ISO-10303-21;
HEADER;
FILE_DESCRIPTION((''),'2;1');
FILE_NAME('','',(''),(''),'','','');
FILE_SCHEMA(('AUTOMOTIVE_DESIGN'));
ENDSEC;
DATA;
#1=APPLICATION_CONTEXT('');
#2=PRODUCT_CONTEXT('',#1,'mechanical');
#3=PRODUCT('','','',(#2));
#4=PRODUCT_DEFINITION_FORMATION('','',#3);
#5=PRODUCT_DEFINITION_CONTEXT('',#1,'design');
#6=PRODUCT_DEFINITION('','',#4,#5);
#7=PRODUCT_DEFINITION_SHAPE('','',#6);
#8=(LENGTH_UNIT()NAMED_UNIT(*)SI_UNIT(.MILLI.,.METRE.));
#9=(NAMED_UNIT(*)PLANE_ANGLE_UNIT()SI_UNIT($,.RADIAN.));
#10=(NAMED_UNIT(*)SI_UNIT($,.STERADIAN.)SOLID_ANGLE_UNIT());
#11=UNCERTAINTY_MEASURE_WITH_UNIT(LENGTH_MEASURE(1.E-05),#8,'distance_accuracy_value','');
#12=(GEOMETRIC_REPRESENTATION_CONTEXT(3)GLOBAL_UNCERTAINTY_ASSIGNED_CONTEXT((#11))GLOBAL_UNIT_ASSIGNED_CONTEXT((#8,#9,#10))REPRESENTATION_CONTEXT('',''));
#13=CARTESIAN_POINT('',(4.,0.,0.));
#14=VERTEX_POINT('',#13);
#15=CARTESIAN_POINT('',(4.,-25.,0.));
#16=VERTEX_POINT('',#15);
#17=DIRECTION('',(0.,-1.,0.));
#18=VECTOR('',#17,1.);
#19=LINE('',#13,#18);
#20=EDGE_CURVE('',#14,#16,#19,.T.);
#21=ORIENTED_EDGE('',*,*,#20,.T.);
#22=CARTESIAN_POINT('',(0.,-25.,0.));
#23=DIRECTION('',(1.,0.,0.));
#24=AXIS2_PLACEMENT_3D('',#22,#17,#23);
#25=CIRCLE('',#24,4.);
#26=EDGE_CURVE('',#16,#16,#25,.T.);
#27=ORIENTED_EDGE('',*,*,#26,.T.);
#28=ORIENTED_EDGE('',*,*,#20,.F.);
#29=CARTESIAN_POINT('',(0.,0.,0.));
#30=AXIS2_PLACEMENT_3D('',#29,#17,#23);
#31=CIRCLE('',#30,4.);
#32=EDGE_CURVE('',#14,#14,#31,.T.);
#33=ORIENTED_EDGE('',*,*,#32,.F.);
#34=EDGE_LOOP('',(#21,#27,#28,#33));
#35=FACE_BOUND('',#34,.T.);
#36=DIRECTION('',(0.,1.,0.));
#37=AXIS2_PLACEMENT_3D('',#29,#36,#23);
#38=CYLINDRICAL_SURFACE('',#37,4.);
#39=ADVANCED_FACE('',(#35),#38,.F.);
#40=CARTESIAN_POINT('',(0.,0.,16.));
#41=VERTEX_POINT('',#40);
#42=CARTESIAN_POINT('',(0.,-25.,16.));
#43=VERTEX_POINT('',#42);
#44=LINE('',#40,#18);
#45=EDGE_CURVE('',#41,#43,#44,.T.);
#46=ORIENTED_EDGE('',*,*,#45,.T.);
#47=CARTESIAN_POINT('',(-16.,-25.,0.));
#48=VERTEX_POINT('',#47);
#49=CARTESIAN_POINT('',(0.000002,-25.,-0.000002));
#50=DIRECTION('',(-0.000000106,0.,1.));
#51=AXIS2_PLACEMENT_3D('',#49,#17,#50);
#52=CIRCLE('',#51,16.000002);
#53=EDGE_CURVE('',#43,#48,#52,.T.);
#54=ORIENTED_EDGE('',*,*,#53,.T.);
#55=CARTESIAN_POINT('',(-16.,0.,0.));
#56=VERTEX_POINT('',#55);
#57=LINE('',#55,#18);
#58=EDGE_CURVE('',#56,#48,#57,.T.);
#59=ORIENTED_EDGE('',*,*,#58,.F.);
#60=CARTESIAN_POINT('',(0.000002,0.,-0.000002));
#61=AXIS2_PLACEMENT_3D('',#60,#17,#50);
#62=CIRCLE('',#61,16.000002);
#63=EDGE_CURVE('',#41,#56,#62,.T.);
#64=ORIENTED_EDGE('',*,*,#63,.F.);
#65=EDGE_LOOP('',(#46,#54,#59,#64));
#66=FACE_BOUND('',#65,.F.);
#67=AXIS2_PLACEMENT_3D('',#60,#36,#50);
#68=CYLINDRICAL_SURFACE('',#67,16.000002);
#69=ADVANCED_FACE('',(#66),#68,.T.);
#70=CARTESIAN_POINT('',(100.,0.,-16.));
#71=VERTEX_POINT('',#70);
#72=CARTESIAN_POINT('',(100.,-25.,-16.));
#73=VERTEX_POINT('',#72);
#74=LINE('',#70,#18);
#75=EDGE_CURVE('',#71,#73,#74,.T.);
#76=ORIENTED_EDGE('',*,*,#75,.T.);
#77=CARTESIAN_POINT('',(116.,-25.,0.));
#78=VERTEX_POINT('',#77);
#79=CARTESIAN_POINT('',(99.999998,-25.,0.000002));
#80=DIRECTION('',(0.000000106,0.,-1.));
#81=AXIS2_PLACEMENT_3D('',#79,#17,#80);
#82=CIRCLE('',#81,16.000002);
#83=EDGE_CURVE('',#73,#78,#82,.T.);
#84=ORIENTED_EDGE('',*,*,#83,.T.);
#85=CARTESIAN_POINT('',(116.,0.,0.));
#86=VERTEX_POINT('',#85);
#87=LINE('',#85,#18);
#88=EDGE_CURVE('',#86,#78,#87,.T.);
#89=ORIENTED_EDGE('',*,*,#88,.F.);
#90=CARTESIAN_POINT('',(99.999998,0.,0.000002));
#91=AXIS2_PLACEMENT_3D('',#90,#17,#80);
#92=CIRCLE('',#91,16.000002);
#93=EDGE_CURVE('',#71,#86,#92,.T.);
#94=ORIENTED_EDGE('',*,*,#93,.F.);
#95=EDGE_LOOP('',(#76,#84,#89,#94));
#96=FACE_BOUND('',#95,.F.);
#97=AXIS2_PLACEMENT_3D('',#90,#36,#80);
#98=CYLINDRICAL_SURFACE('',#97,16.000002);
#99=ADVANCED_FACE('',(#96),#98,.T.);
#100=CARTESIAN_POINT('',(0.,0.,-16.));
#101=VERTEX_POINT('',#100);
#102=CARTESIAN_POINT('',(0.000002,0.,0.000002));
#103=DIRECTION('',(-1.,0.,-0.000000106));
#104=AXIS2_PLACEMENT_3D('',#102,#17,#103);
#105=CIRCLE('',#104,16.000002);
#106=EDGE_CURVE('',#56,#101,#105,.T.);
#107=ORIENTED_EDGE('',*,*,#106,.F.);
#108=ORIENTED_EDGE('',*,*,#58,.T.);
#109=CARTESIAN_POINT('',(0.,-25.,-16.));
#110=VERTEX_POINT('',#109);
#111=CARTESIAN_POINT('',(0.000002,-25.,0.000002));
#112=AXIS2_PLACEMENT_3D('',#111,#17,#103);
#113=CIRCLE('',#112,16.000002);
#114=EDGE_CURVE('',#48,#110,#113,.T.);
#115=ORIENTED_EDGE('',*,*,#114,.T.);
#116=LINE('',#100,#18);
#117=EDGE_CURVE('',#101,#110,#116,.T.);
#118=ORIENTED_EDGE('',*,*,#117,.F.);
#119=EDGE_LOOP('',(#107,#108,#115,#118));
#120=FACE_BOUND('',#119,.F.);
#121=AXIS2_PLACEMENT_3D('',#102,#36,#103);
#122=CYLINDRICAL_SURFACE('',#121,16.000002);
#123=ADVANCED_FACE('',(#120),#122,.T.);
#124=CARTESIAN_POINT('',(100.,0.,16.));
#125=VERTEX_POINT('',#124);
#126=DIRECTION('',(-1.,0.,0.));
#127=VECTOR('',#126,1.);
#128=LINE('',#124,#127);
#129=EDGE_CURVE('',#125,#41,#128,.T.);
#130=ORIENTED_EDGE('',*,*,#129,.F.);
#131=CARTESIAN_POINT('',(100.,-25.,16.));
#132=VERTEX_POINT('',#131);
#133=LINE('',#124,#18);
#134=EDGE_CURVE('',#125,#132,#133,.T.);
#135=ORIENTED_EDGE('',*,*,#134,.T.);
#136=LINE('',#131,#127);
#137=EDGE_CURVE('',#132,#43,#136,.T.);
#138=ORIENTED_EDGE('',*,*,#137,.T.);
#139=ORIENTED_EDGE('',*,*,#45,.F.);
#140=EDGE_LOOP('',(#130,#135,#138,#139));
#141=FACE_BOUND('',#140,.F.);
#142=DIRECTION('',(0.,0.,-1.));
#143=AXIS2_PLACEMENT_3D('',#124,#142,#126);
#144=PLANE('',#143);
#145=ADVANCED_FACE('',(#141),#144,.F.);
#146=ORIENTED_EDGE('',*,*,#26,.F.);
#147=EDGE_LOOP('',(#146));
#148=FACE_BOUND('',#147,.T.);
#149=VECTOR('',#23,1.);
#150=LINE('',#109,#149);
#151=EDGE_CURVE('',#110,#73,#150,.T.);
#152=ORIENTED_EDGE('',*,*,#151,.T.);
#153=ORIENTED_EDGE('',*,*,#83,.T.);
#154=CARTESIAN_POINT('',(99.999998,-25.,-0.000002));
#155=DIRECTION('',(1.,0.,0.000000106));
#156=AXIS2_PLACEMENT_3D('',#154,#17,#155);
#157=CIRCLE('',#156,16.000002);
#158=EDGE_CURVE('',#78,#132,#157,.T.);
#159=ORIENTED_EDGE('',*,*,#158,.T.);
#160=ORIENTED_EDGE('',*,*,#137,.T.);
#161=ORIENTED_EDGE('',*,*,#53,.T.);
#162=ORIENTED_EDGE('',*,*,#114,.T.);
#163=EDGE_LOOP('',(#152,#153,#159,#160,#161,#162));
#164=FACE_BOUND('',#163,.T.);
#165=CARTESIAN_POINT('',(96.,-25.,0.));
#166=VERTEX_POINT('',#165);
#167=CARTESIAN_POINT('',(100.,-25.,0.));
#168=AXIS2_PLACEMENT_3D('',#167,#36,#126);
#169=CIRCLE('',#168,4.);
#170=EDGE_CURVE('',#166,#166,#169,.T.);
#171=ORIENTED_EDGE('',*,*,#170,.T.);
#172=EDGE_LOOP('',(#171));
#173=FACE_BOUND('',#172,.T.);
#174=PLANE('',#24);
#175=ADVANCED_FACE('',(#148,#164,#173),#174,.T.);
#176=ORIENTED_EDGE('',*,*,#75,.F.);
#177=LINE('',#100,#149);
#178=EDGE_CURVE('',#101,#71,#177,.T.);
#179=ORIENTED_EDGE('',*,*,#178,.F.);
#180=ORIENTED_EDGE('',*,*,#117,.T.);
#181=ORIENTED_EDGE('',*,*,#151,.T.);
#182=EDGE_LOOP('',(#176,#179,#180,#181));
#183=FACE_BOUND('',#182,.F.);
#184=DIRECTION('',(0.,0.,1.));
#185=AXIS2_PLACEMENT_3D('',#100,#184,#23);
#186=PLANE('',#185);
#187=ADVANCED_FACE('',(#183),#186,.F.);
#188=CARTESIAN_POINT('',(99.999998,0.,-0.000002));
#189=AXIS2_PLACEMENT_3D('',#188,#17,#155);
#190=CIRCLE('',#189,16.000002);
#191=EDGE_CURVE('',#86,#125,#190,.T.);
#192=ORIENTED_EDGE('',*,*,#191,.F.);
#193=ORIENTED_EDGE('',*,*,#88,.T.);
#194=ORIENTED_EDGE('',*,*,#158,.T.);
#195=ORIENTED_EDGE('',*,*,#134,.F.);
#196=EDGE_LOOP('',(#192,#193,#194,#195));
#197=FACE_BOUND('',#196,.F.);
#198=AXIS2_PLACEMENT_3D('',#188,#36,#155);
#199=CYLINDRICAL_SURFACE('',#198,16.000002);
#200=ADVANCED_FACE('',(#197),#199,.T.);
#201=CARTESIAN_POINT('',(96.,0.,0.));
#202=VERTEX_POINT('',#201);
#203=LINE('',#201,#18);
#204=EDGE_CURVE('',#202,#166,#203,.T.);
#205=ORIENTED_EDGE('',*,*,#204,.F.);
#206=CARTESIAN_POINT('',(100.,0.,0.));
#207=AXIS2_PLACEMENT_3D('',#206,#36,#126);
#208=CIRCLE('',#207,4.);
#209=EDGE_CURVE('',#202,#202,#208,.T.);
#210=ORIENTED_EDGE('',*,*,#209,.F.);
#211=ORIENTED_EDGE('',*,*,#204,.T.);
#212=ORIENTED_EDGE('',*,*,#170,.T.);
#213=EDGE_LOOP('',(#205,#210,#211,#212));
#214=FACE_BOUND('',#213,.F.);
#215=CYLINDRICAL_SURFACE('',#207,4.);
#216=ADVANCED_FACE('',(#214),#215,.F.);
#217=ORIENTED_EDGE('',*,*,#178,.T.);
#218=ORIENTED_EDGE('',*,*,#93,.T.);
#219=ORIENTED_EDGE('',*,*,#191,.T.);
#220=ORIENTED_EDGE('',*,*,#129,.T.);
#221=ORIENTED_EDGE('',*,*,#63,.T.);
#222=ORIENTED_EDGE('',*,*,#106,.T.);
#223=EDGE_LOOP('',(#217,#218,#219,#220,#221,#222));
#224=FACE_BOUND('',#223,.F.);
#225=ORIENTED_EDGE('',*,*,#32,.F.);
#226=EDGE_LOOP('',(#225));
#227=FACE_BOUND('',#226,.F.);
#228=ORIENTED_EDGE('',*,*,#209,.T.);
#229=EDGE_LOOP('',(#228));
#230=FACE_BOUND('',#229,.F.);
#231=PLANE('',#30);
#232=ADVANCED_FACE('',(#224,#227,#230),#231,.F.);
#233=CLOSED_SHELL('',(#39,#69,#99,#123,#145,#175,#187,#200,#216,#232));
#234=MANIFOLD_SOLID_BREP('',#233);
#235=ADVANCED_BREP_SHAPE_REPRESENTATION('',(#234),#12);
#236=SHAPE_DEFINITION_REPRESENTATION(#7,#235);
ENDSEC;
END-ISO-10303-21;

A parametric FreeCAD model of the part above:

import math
import FreeCAD as App
import Part
import Sketcher

doc = App.newDocument("Part")
body = doc.addObject("PartDesign::Body", "Body")

# Sketch on XZ plane
sketch1 = doc.addObject("Sketcher::SketchObject", "Sketch")
body.addObject(sketch1)
sketch1.AttachmentSupport = (doc.XZ_Plane, [""])
sketch1.MapMode = "FlatFace"
sketch1.addGeometry([
    Part.LineSegment(App.Vector(100, 16, 0), App.Vector(0, 16, 0)),  # 0
    Part.ArcOfCircle(Part.Circle(App.Vector(0, 0, 0), App.Vector(0, 0, 1), 16), math.radians(90), math.radians(180)),  # 1
    Part.ArcOfCircle(Part.Circle(App.Vector(0, 0, 0), App.Vector(0, 0, 1), 16), math.radians(-180), math.radians(-90)),  # 2
    Part.LineSegment(App.Vector(0, -16, 0), App.Vector(100, -16, 0)),  # 3
    Part.ArcOfCircle(Part.Circle(App.Vector(100, 0, 0), App.Vector(0, 0, 1), 16), math.radians(-90), math.radians(0)),  # 4
    Part.ArcOfCircle(Part.Circle(App.Vector(100, 0, 0), App.Vector(0, 0, 1), 16), math.radians(0), math.radians(90)),  # 5
    Part.Circle(App.Vector(0, 0, 0), App.Vector(0, 0, 1), 4),  # 6
    Part.Circle(App.Vector(100, 0, 0), App.Vector(0, 0, 1), 4),  # 7
], False)
sketch1.addConstraint([
    Sketcher.Constraint("Tangent", 0, 2, 1, 1),
    Sketcher.Constraint("Tangent", 1, 2, 2, 1),
    Sketcher.Constraint("Tangent", 2, 2, 3, 1),
    Sketcher.Constraint("Tangent", 3, 2, 4, 1),
    Sketcher.Constraint("Tangent", 4, 2, 5, 1),
    Sketcher.Constraint("Tangent", 5, 2, 0, 1),
    Sketcher.Constraint("Horizontal", 0),
    Sketcher.Constraint("Horizontal", 3),
    Sketcher.Constraint("Coincident", 1, 3, -1, 1),
    Sketcher.Constraint("Coincident", 6, 3, -1, 1),
    Sketcher.Constraint("Coincident", 7, 3, 4, 3),
    Sketcher.Constraint("Equal", 1, 2),
    Sketcher.Constraint("Equal", 2, 4),
    Sketcher.Constraint("Equal", 6, 7),
    Sketcher.Constraint("PointOnObject", 1, 2, -1),
    Sketcher.Constraint("PointOnObject", 4, 2, -1),
    Sketcher.Constraint("Diameter", 6, 8.0),
    Sketcher.Constraint("Radius", 1, 16.000002),
    Sketcher.Constraint("DistanceX", 0, 2, 0, 1, 100.0),
])
pad1 = doc.addObject("PartDesign::Pad", "Pad")
body.addObject(pad1)
pad1.Profile = sketch1
pad1.Length = 25

doc.recompute()
